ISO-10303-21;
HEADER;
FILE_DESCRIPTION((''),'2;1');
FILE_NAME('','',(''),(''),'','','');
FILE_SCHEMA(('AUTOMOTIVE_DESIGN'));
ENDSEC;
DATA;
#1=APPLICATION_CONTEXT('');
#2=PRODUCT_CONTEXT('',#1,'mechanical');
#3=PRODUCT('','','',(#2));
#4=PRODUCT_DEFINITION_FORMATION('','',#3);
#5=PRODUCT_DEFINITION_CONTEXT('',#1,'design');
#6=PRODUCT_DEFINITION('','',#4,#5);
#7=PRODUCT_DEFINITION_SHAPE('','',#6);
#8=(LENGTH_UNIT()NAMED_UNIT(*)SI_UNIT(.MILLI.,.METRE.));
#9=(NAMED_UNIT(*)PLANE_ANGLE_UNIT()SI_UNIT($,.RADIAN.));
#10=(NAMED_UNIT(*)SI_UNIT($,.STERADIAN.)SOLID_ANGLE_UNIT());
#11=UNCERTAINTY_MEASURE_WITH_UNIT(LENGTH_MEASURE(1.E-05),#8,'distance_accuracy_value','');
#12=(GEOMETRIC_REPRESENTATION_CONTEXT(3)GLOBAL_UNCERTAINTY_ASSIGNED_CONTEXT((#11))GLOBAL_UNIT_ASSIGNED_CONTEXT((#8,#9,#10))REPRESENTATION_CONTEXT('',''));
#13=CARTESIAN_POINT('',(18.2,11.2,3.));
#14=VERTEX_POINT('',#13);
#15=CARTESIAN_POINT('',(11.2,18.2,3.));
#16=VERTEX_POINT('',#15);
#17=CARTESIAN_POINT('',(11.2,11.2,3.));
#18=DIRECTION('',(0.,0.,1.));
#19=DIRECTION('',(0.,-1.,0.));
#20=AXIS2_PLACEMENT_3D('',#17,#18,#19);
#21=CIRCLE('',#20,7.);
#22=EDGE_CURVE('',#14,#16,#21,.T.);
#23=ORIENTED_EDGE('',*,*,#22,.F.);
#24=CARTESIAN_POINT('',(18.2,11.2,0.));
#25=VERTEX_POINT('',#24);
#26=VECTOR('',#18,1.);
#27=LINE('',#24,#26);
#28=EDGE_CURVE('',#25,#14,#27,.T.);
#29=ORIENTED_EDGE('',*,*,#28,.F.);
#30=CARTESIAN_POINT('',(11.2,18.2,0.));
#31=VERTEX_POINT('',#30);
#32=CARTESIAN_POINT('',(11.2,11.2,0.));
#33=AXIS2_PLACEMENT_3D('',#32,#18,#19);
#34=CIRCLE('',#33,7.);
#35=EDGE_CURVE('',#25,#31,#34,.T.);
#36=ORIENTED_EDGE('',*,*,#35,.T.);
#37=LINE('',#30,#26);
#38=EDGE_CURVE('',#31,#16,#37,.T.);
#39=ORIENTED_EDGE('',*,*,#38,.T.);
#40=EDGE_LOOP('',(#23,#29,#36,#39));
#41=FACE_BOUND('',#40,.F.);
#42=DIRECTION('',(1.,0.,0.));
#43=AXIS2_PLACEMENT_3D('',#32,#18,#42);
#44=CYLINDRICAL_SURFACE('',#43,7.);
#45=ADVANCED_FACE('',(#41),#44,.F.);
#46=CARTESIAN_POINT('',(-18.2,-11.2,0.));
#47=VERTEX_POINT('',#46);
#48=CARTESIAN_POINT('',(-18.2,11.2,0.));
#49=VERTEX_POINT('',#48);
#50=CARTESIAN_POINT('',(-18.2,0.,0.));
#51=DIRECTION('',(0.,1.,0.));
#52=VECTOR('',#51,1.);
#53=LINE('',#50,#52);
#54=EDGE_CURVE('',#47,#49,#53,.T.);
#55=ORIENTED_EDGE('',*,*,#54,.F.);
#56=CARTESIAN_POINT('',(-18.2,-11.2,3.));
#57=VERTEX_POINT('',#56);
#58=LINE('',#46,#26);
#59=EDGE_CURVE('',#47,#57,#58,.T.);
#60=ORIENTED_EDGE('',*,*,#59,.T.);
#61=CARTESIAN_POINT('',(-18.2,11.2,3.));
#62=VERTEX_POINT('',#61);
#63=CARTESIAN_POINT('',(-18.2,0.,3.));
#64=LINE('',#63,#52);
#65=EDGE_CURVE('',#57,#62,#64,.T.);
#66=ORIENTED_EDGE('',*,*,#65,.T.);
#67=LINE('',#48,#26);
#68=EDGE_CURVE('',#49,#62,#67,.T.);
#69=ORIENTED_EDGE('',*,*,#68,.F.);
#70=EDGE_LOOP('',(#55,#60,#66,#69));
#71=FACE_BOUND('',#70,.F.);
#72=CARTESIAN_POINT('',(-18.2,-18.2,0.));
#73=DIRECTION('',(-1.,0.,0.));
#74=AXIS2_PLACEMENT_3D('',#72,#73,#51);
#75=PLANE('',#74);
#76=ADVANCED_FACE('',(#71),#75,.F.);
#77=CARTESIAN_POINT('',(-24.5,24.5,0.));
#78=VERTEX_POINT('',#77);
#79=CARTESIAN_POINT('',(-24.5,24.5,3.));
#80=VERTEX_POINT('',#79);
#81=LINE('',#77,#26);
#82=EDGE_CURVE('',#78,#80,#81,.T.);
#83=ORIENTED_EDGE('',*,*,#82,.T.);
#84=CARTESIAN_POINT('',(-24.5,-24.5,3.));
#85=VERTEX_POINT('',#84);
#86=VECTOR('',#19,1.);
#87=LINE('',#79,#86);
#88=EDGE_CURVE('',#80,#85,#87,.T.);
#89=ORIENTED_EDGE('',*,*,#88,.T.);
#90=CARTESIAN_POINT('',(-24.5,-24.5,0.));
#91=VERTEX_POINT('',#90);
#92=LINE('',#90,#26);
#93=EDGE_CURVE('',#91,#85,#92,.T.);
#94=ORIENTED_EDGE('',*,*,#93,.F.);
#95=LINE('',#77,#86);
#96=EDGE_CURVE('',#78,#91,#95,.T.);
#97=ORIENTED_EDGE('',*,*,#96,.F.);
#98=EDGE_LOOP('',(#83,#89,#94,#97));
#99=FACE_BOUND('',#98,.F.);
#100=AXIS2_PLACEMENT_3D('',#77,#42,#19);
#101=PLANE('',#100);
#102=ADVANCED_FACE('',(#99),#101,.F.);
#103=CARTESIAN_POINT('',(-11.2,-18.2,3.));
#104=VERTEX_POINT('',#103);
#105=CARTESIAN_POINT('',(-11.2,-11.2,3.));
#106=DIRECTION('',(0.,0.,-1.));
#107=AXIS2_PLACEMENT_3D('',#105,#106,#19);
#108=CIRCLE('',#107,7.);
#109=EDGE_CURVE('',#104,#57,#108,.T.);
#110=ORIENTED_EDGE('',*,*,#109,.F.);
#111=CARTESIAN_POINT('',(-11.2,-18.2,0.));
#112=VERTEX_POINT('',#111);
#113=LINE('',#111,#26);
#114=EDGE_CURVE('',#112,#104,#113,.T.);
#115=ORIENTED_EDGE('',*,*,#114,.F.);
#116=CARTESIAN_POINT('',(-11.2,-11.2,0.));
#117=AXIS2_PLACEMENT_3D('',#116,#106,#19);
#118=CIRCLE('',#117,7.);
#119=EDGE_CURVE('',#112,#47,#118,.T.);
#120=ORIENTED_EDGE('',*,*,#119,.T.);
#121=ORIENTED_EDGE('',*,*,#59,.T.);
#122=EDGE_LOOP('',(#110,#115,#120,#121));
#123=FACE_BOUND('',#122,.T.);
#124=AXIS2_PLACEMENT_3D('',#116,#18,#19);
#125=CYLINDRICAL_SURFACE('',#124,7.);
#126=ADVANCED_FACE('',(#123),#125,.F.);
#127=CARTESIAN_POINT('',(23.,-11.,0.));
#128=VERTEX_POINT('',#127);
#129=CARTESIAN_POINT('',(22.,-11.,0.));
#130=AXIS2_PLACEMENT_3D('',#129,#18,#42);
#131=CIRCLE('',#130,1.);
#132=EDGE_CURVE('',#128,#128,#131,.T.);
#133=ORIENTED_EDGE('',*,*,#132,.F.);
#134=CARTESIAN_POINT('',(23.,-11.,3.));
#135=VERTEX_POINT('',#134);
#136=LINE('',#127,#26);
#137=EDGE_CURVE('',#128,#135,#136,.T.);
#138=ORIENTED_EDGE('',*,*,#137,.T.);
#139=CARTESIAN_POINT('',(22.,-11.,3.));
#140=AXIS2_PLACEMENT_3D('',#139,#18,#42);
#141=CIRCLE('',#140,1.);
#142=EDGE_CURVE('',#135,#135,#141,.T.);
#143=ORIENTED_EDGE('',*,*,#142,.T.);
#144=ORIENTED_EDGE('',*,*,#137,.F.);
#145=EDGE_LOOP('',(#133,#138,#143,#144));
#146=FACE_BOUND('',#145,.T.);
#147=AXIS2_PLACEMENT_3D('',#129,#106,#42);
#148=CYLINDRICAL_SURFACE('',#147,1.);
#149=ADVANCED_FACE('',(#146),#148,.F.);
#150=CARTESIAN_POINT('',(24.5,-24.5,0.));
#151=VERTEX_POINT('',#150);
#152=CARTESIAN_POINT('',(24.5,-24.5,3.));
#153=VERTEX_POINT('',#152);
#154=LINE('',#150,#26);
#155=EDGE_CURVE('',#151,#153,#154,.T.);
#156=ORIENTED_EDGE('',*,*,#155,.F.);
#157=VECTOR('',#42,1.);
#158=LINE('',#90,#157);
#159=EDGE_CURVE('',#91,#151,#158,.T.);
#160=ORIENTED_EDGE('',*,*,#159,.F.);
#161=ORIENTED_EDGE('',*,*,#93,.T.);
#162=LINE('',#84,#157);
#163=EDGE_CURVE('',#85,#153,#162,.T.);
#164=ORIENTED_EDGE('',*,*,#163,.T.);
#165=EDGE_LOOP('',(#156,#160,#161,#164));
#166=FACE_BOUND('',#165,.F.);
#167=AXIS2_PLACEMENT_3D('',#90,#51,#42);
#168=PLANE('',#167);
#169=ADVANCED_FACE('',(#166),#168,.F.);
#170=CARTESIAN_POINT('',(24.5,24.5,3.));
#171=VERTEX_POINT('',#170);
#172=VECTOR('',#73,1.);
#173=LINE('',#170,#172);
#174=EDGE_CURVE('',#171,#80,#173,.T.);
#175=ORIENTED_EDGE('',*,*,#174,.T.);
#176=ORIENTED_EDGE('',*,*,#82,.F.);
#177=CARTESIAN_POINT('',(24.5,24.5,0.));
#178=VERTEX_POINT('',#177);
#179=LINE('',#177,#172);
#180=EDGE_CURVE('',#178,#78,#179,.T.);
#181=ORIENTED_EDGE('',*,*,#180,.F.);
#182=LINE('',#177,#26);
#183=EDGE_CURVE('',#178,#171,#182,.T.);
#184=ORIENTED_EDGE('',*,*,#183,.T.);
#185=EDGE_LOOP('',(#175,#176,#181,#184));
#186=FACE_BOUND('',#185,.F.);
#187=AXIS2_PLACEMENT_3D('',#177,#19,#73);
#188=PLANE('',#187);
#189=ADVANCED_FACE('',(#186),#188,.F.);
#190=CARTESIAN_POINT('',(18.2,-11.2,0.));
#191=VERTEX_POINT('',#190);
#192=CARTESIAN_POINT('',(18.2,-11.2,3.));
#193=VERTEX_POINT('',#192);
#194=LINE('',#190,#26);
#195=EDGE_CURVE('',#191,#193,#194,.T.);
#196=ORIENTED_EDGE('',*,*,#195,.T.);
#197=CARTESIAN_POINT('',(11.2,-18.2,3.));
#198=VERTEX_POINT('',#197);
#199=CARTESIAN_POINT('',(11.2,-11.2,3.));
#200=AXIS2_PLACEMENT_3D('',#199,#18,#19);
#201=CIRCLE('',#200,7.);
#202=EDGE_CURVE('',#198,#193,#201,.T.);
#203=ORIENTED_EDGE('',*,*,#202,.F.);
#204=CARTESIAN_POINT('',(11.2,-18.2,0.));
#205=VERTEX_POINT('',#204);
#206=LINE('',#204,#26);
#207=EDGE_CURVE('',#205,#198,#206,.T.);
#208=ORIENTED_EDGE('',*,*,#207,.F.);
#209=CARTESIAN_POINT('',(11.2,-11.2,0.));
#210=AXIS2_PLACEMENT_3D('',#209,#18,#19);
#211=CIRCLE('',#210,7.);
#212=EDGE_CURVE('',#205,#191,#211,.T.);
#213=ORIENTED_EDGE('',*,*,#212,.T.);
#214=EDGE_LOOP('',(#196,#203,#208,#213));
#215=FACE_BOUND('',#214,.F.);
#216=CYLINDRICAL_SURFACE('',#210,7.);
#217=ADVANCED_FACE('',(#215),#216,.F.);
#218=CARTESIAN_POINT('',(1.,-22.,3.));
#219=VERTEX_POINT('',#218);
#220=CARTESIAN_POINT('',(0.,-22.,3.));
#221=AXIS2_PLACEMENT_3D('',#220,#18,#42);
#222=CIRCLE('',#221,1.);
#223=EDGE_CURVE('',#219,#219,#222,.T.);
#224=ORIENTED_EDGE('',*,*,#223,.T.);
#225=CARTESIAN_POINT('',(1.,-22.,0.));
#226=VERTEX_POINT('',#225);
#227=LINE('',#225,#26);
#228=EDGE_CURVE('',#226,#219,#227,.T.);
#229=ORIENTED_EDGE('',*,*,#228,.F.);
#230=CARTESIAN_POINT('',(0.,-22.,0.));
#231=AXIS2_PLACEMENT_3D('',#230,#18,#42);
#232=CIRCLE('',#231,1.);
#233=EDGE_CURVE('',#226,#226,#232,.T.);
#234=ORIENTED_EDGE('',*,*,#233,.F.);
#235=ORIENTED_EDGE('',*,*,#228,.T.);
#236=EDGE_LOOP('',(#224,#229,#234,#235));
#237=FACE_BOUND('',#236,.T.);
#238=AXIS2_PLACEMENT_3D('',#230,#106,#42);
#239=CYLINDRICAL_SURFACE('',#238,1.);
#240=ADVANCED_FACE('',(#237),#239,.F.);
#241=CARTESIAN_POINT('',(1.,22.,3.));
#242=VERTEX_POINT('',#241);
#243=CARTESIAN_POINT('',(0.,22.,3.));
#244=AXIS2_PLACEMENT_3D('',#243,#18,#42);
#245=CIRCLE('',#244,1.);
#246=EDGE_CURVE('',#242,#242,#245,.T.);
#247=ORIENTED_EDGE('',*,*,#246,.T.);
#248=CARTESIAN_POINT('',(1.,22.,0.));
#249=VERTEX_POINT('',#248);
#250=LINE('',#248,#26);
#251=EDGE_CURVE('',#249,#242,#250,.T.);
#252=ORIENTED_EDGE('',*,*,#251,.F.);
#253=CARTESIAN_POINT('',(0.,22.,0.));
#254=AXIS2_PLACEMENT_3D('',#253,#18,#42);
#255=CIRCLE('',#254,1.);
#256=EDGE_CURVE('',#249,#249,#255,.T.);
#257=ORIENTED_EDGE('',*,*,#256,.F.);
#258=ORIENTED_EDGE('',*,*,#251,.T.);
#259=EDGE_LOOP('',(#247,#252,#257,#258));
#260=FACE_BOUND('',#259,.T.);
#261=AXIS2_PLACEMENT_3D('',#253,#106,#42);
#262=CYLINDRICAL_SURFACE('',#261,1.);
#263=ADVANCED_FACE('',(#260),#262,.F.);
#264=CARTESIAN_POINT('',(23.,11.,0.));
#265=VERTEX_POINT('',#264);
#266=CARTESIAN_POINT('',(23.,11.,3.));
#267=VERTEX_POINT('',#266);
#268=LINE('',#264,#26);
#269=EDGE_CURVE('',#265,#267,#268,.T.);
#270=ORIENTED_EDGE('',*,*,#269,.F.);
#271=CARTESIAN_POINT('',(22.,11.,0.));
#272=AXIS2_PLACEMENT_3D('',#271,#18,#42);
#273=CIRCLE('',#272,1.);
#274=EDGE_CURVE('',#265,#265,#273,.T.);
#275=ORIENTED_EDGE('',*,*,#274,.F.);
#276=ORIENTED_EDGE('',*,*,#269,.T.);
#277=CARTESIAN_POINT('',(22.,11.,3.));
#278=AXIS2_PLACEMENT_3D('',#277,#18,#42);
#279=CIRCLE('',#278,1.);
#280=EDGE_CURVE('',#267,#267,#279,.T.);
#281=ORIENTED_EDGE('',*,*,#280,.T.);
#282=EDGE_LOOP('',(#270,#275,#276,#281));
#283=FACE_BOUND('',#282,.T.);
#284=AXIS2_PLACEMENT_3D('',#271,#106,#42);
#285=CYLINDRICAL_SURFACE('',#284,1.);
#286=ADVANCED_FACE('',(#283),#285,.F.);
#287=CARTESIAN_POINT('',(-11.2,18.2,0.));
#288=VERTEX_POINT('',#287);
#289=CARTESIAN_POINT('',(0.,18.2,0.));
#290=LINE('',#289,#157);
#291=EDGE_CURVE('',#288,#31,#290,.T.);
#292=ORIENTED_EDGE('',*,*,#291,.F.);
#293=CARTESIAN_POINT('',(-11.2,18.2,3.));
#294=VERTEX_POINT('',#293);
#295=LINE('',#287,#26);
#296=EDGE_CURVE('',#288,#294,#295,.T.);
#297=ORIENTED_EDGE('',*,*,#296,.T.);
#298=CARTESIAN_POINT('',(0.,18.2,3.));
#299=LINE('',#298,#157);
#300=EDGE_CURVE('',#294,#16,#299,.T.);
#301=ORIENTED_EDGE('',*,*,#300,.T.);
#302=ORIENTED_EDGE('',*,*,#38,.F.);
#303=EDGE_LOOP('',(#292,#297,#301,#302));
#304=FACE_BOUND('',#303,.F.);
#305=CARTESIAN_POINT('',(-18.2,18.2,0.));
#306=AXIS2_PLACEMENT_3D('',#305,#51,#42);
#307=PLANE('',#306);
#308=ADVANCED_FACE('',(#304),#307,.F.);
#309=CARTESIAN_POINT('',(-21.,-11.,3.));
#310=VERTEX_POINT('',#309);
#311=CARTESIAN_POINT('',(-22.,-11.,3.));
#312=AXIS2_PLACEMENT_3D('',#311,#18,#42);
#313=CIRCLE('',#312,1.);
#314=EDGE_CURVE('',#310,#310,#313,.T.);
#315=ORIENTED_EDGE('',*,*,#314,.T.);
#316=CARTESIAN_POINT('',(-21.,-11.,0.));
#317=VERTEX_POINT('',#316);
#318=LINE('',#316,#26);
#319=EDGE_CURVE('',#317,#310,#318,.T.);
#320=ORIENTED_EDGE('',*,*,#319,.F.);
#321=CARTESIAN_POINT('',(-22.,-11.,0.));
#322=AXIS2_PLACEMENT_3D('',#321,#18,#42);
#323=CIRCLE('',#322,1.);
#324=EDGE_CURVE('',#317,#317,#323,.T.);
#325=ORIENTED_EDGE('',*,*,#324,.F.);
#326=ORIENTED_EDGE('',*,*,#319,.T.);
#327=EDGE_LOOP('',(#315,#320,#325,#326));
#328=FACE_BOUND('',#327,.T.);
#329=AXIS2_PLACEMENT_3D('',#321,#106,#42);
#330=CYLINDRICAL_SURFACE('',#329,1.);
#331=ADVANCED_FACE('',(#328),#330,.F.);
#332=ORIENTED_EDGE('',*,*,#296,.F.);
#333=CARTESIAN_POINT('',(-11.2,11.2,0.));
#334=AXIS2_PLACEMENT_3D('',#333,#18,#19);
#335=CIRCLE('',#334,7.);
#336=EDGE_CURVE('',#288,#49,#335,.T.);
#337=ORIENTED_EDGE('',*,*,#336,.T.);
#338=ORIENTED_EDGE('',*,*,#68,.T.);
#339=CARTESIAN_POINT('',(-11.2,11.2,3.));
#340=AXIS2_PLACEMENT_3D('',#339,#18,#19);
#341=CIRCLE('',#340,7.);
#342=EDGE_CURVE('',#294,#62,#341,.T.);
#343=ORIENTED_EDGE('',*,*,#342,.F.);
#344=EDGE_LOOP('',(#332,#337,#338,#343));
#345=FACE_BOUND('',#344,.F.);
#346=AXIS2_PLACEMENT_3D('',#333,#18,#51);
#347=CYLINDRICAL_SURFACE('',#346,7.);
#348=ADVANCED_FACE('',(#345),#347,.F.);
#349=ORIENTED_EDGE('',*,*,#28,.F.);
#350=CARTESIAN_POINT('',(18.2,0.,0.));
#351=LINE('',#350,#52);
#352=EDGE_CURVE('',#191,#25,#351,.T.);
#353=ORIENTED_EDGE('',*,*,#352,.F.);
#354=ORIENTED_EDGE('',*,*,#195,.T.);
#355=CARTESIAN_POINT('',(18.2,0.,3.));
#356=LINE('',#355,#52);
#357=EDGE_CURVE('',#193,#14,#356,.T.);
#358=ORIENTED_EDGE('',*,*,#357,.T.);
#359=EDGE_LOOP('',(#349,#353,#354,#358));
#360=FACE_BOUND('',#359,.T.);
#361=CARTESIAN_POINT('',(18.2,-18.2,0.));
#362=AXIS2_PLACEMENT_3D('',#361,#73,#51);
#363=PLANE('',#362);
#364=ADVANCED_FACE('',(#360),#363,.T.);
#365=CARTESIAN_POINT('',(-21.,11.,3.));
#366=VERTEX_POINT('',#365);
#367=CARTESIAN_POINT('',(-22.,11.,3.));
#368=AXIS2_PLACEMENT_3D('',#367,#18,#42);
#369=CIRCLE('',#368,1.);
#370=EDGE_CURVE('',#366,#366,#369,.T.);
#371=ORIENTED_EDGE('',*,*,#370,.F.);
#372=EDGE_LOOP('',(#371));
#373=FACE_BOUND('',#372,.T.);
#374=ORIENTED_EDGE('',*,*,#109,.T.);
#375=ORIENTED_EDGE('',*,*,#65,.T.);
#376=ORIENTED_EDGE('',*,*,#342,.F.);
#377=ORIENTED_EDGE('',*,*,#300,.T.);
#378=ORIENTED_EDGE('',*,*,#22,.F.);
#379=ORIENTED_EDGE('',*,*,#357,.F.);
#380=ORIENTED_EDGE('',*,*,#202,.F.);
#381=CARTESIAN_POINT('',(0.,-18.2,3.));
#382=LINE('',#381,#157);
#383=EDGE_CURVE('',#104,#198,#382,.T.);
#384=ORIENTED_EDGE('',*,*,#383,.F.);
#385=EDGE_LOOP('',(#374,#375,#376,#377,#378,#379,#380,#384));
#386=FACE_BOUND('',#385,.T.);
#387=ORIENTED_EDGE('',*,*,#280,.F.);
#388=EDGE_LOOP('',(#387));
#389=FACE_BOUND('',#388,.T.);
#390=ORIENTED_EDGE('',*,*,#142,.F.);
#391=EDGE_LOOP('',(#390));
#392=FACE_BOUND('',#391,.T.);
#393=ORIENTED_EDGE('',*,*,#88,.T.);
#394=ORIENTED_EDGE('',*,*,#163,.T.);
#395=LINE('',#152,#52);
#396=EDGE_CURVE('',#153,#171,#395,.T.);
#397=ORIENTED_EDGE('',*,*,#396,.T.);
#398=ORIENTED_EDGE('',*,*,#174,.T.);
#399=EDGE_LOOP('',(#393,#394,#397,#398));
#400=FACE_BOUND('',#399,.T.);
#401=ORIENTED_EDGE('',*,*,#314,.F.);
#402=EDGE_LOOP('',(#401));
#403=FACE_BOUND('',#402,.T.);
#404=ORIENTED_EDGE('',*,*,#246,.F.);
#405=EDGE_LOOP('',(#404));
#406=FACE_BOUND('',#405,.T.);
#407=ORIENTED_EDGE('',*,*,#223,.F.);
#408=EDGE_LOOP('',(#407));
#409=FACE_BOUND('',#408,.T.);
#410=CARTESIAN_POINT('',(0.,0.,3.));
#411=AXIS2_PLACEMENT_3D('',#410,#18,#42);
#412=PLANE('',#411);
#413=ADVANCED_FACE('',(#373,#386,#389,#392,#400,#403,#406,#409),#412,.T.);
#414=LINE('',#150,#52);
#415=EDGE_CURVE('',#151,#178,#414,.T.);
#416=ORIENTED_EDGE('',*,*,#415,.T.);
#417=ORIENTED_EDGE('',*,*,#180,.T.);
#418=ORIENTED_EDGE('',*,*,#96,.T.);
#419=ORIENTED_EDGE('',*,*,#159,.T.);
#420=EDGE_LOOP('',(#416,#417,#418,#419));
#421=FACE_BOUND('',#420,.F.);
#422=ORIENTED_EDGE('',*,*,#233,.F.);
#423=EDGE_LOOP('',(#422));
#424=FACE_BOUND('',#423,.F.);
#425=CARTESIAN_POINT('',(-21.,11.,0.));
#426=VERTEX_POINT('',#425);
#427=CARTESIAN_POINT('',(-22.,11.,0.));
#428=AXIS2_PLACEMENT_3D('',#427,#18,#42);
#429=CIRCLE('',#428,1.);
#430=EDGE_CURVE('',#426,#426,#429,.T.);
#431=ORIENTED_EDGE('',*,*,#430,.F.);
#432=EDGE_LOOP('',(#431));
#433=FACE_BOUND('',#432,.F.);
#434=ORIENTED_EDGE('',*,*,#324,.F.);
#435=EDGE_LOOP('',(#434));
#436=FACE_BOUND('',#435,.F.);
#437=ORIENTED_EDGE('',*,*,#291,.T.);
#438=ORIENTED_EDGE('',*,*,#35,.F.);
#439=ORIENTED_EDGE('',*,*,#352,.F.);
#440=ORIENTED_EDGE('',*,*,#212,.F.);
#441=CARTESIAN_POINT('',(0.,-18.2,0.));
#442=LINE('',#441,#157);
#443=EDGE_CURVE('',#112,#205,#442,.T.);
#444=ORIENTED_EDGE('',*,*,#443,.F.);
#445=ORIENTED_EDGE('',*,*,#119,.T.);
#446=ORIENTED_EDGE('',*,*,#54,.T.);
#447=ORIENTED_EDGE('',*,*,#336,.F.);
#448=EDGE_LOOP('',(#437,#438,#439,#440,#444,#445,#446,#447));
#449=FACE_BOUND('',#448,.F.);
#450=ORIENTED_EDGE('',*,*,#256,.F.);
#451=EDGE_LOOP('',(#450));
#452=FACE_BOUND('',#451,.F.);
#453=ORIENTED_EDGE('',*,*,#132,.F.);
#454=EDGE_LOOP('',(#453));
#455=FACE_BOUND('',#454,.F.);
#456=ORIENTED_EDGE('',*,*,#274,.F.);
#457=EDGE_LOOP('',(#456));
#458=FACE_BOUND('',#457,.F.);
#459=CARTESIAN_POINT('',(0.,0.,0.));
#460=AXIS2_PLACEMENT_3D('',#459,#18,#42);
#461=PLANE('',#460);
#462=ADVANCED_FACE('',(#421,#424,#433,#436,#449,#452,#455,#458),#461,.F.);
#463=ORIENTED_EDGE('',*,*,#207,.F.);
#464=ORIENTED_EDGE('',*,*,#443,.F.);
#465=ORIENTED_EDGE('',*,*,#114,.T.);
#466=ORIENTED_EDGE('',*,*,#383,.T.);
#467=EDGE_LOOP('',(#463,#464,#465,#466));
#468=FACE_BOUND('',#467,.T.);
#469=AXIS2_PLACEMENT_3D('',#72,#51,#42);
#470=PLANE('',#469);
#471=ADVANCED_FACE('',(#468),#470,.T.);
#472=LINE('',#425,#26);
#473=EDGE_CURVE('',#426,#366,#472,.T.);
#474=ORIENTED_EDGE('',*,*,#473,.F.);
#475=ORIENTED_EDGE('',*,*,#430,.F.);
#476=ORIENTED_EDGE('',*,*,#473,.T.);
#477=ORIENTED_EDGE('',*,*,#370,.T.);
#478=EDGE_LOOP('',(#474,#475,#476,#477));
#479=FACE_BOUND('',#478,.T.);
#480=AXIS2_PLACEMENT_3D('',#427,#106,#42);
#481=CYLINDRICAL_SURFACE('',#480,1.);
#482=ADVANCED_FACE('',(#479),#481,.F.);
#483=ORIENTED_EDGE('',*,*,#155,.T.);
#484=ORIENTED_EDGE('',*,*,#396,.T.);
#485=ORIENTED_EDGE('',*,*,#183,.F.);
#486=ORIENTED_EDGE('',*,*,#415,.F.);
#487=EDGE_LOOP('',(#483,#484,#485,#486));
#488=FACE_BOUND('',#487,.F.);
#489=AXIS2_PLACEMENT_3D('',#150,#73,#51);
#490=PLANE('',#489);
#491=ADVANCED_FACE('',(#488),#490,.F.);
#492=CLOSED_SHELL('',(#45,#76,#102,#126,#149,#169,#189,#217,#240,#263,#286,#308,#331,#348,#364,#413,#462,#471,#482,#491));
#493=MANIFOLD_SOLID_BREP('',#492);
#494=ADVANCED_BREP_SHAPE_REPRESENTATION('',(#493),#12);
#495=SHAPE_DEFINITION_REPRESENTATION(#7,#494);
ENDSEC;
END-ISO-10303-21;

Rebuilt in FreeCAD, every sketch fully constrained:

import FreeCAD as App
import Part
import Sketcher

V = App.Vector
Q = App.Units.Quantity


def edges_at(feature, points):
    """Names of the edges that pass closest to the given points."""
    edges = feature.Shape.Edges
    near = lambda p: min(range(len(edges)), key=lambda i: edges[i].distToShape(Part.Vertex(*p))[0])
    return sorted({f"Edge{near(p) + 1}" for p in points})


def add_polygon(sketch, points):
    """Adds a closed chain of lines whose ends are joined by coincident constraints."""
    first, n = sketch.GeometryCount, len(points)
    for a, b in zip(points, points[1:] + points[:1]):
        sketch.addGeometry(Part.LineSegment(App.Vector(*a, 0), App.Vector(*b, 0)), False)
    for i in range(n):
        sketch.addConstraint(Sketcher.Constraint("Coincident", first + i, 2, first + (i + 1) % n, 1))

doc = App.newDocument("Part")
body = doc.addObject("PartDesign::Body", "Body")

sketch1 = body.newObject("Sketcher::SketchObject", "Sketch")
sketch1.AttachmentSupport = (doc.getObject("XY_Plane"), [""])
sketch1.MapMode = "FlatFace"
add_polygon(sketch1, [(-24.5, 24.5), (-24.5, -24.5), (24.5, -24.5), (24.5, 24.5)])
sketch1.addGeometry(Part.Circle(V(-22, -11, 0), V(0, 0, 1), 1), False)
sketch1.addGeometry(Part.Circle(V(0, -22, 0), V(0, 0, 1), 1), False)
sketch1.addGeometry(Part.Circle(V(22, -11, 0), V(0, 0, 1), 1), False)
sketch1.addGeometry(Part.Circle(V(-22, 11, 0), V(0, 0, 1), 1), False)
add_polygon(sketch1, [(18.2, -18.2), (-18.2, -18.2), (-18.2, 18.2), (18.2, 18.2)])
sketch1.addGeometry(Part.Circle(V(22, 11, 0), V(0, 0, 1), 1), False)
sketch1.addGeometry(Part.Circle(V(0, 22, 0), V(0, 0, 1), 1), False)
sketch1.addConstraint(Sketcher.Constraint("Vertical", 0))
sketch1.addConstraint(Sketcher.Constraint("Horizontal", 1))
sketch1.addConstraint(Sketcher.Constraint("Vertical", 2))
sketch1.addConstraint(Sketcher.Constraint("Horizontal", 3))
sketch1.addConstraint(Sketcher.Constraint("Horizontal", 8))
sketch1.addConstraint(Sketcher.Constraint("Vertical", 9))
sketch1.addConstraint(Sketcher.Constraint("Horizontal", 10))
sketch1.addConstraint(Sketcher.Constraint("Vertical", 11))
sketch1.addConstraint(Sketcher.Constraint("Equal", 4, 5))
sketch1.addConstraint(Sketcher.Constraint("Equal", 5, 6))
sketch1.addConstraint(Sketcher.Constraint("Equal", 6, 7))
sketch1.addConstraint(Sketcher.Constraint("Equal", 7, 12))
sketch1.addConstraint(Sketcher.Constraint("Equal", 12, 13))
sketch1.addConstraint(Sketcher.Constraint("Symmetric", 6, 3, 7, 3, -1, 1))
sketch1.addConstraint(Sketcher.Constraint("Symmetric", 4, 3, 12, 3, -1, 1))
sketch1.addConstraint(Sketcher.Constraint("Symmetric", 5, 3, 13, 3, -1, 1))
sketch1.addConstraint(Sketcher.Constraint("Symmetric", 0, 2, 2, 2, -1, 1))
sketch1.addConstraint(Sketcher.Constraint("Symmetric", 8, 2, 10, 2, -1, 1))
sketch1.addConstraint(Sketcher.Constraint("Symmetric", 4, 3, 6, 3, -2))
sketch1.addConstraint(Sketcher.Constraint("PointOnObject", 5, 3, -2))
sketch1.addConstraint(Sketcher.Constraint("Equal", 3, 0))
sketch1.addConstraint(Sketcher.Constraint("Equal", 10, 9))
sketch1.addConstraint(Sketcher.Constraint("Diameter", 4, Q("2 mm")))
sketch1.addConstraint(Sketcher.Constraint("DistanceX", 1, 1, 1, 2, Q("49 mm")))
sketch1.addConstraint(Sketcher.Constraint("DistanceX", 8, 2, 8, 1, Q("36.4 mm")))
sketch1.addConstraint(Sketcher.Constraint("DistanceX", 4, 3, -1, 1, Q("22 mm")))
sketch1.addConstraint(Sketcher.Constraint("DistanceY", 4, 3, -1, 1, Q("11 mm")))
sketch1.addConstraint(Sketcher.Constraint("DistanceY", 5, 3, -1, 1, Q("22 mm")))
pad1 = body.newObject("PartDesign::Pad", "Pad")
pad1.Profile = sketch1
pad1.Length = 3
doc.recompute()

fillet = body.newObject("PartDesign::Fillet", "Fillet")
fillet.Base = (pad1, edges_at(pad1, [
    (-18.2, 18.2, 1.5),
    (-18.2, -18.2, 1.5),
    (18.2, -18.2, 1.5),
    (18.2, 18.2, 1.5),
]))
fillet.Radius = 7

doc.recompute()
